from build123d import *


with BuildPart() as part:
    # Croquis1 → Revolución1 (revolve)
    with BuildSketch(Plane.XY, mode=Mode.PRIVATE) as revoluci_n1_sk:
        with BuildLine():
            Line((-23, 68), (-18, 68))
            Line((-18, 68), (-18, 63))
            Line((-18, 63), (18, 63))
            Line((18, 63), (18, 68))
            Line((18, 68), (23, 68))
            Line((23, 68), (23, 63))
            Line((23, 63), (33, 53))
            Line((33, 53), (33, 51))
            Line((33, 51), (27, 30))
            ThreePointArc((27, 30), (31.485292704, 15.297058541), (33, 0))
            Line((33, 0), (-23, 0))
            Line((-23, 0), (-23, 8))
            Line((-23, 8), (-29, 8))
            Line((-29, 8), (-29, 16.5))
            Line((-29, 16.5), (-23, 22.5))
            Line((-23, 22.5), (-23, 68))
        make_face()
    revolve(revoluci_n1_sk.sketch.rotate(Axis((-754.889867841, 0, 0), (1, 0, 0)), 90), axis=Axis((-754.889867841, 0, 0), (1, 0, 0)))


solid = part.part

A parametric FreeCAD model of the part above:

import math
import FreeCAD as App
import Part
import Sketcher

V = App.Vector
Q = App.Units.Quantity

doc = App.newDocument("Part")
body = doc.addObject("PartDesign::Body", "Body")

# Sketch on XY plane
sketch1 = body.newObject("Sketcher::SketchObject", "Sketch")
sketch1.AttachmentSupport = (doc.getObject("XY_Plane"), [""])
sketch1.MapMode = "FlatFace"
sketch1.addGeometry(Part.LineSegment(V(-18, 68, 0), V(-23, 68, 0)), False)
sketch1.addGeometry(Part.LineSegment(V(-23, 68, 0), V(-23, 22.5, 0)), False)
sketch1.addGeometry(Part.LineSegment(V(-23, 22.5, 0), V(-29, 16.5, 0)), False)
sketch1.addGeometry(Part.LineSegment(V(-29, 16.5, 0), V(-29, 8, 0)), False)
sketch1.addGeometry(Part.LineSegment(V(-29, 8, 0), V(-23, 8, 0)), False)
sketch1.addGeometry(Part.LineSegment(V(-23, 8, 0), V(-23, 0, 0)), False)
sketch1.addGeometry(Part.LineSegment(V(-23, 0, 0), V(33, 0, 0)), False)
sketch1.addGeometry(Part.ArcOfCircle(Part.Circle(V(-45, 0, 0), V(0, 0, 1), 78), math.radians(0), math.radians(23)), False)
sketch1.addGeometry(Part.LineSegment(V(27, 30, 0), V(33, 51, 0)), False)
sketch1.addGeometry(Part.LineSegment(V(33, 51, 0), V(33, 53, 0)), False)
sketch1.addGeometry(Part.LineSegment(V(33, 53, 0), V(23, 63, 0)), False)
sketch1.addGeometry(Part.LineSegment(V(23, 63, 0), V(23, 68, 0)), False)
sketch1.addGeometry(Part.LineSegment(V(23, 68, 0), V(18, 68, 0)), False)
sketch1.addGeometry(Part.LineSegment(V(18, 68, 0), V(18, 63, 0)), False)
sketch1.addGeometry(Part.LineSegment(V(18, 63, 0), V(-18, 63, 0)), False)
sketch1.addGeometry(Part.LineSegment(V(-18, 63, 0), V(-18, 68, 0)), False)
sketch1.addConstraint(Sketcher.Constraint("Coincident", 0, 2, 1, 1))
sketch1.addConstraint(Sketcher.Constraint("Coincident", 1, 2, 2, 1))
sketch1.addConstraint(Sketcher.Constraint("Coincident", 2, 2, 3, 1))
sketch1.addConstraint(Sketcher.Constraint("Coincident", 3, 2, 4, 1))
sketch1.addConstraint(Sketcher.Constraint("Coincident", 4, 2, 5, 1))
sketch1.addConstraint(Sketcher.Constraint("Coincident", 5, 2, 6, 1))
sketch1.addConstraint(Sketcher.Constraint("Coincident", 6, 2, 7, 1))
sketch1.addConstraint(Sketcher.Constraint("Coincident", 7, 2, 8, 1))
sketch1.addConstraint(Sketcher.Constraint("Coincident", 8, 2, 9, 1))
sketch1.addConstraint(Sketcher.Constraint("Coincident", 9, 2, 10, 1))
sketch1.addConstraint(Sketcher.Constraint("Coincident", 10, 2, 11, 1))
sketch1.addConstraint(Sketcher.Constraint("Coincident", 11, 2, 12, 1))
sketch1.addConstraint(Sketcher.Constraint("Coincident", 12, 2, 13, 1))
sketch1.addConstraint(Sketcher.Constraint("Coincident", 13, 2, 14, 1))
sketch1.addConstraint(Sketcher.Constraint("Coincident", 14, 2, 15, 1))
sketch1.addConstraint(Sketcher.Constraint("Coincident", 15, 2, 0, 1))
sketch1.addConstraint(Sketcher.Constraint("Horizontal", 0))
sketch1.addConstraint(Sketcher.Constraint("Vertical", 1))
sketch1.addConstraint(Sketcher.Constraint("Vertical", 3))
sketch1.addConstraint(Sketcher.Constraint("Horizontal", 4))
sketch1.addConstraint(Sketcher.Constraint("Vertical", 5))
sketch1.addConstraint(Sketcher.Constraint("Horizontal", 6))
sketch1.addConstraint(Sketcher.Constraint("Vertical", 9))
sketch1.addConstraint(Sketcher.Constraint("Vertical", 11))
sketch1.addConstraint(Sketcher.Constraint("Horizontal", 12))
sketch1.addConstraint(Sketcher.Constraint("Vertical", 13))
sketch1.addConstraint(Sketcher.Constraint("Horizontal", 14))
sketch1.addConstraint(Sketcher.Constraint("Vertical", 15))
sketch1.addConstraint(Sketcher.Constraint("Symmetric", 0, 2, 11, 2, -2))
sketch1.addConstraint(Sketcher.Constraint("PointOnObject", 7, 3, -1))
sketch1.addConstraint(Sketcher.Constraint("PointOnObject", 5, 2, -1))
sketch1.addConstraint(Sketcher.Constraint("Perpendicular", 2, 10))
sketch1.addConstraint(Sketcher.Constraint("Horizontal", 10, 2, 13, 2))
sketch1.addConstraint(Sketcher.Constraint("Vertical", 1, 2, 4, 2))
sketch1.addConstraint(Sketcher.Constraint("Vertical", 6, 2, 8, 2))
sketch1.addConstraint(Sketcher.Constraint("Equal", 0, 12))
sketch1.addConstraint(Sketcher.Constraint("Equal", 12, 11))
sketch1.addConstraint(Sketcher.Constraint("Radius", 7, 78.0))
sketch1.addConstraint(Sketcher.Constraint("DistanceX", 0, 2, 0, 1, 5.0))
sketch1.addConstraint(Sketcher.Constraint("DistanceX", 4, 1, 4, 2, 6.0))
sketch1.addConstraint(Sketcher.Constraint("DistanceX", 6, 1, 6, 2, 56.0))
sketch1.addConstraint(Sketcher.Constraint("DistanceX", 14, 2, 14, 1, 36.0))
sketch1.addConstraint(Sketcher.Constraint("DistanceY", 5, 2, 5, 1, 8.0))
sketch1.addConstraint(Sketcher.Constraint("DistanceY", 9, 1, 9, 2, 2.0))
sketch1.addConstraint(Sketcher.Constraint("Angle", 2, Q("-135 deg")))
sketch1.addConstraint(Sketcher.Constraint("DistanceY", 1, 2, 1, 1, 45.5))
sketch1.addConstraint(Sketcher.Constraint("DistanceY", 3, 2, 3, 1, 8.5))
sketch1.addConstraint(Sketcher.Constraint("DistanceX", -1, 1, 7, 2, 27.0))
revolution = body.newObject("PartDesign::Revolution", "Revolution")
revolution.Profile = sketch1
revolution.ReferenceAxis = (sketch1, ["H_Axis"])
revolution.Angle = 360

doc.recompute()
